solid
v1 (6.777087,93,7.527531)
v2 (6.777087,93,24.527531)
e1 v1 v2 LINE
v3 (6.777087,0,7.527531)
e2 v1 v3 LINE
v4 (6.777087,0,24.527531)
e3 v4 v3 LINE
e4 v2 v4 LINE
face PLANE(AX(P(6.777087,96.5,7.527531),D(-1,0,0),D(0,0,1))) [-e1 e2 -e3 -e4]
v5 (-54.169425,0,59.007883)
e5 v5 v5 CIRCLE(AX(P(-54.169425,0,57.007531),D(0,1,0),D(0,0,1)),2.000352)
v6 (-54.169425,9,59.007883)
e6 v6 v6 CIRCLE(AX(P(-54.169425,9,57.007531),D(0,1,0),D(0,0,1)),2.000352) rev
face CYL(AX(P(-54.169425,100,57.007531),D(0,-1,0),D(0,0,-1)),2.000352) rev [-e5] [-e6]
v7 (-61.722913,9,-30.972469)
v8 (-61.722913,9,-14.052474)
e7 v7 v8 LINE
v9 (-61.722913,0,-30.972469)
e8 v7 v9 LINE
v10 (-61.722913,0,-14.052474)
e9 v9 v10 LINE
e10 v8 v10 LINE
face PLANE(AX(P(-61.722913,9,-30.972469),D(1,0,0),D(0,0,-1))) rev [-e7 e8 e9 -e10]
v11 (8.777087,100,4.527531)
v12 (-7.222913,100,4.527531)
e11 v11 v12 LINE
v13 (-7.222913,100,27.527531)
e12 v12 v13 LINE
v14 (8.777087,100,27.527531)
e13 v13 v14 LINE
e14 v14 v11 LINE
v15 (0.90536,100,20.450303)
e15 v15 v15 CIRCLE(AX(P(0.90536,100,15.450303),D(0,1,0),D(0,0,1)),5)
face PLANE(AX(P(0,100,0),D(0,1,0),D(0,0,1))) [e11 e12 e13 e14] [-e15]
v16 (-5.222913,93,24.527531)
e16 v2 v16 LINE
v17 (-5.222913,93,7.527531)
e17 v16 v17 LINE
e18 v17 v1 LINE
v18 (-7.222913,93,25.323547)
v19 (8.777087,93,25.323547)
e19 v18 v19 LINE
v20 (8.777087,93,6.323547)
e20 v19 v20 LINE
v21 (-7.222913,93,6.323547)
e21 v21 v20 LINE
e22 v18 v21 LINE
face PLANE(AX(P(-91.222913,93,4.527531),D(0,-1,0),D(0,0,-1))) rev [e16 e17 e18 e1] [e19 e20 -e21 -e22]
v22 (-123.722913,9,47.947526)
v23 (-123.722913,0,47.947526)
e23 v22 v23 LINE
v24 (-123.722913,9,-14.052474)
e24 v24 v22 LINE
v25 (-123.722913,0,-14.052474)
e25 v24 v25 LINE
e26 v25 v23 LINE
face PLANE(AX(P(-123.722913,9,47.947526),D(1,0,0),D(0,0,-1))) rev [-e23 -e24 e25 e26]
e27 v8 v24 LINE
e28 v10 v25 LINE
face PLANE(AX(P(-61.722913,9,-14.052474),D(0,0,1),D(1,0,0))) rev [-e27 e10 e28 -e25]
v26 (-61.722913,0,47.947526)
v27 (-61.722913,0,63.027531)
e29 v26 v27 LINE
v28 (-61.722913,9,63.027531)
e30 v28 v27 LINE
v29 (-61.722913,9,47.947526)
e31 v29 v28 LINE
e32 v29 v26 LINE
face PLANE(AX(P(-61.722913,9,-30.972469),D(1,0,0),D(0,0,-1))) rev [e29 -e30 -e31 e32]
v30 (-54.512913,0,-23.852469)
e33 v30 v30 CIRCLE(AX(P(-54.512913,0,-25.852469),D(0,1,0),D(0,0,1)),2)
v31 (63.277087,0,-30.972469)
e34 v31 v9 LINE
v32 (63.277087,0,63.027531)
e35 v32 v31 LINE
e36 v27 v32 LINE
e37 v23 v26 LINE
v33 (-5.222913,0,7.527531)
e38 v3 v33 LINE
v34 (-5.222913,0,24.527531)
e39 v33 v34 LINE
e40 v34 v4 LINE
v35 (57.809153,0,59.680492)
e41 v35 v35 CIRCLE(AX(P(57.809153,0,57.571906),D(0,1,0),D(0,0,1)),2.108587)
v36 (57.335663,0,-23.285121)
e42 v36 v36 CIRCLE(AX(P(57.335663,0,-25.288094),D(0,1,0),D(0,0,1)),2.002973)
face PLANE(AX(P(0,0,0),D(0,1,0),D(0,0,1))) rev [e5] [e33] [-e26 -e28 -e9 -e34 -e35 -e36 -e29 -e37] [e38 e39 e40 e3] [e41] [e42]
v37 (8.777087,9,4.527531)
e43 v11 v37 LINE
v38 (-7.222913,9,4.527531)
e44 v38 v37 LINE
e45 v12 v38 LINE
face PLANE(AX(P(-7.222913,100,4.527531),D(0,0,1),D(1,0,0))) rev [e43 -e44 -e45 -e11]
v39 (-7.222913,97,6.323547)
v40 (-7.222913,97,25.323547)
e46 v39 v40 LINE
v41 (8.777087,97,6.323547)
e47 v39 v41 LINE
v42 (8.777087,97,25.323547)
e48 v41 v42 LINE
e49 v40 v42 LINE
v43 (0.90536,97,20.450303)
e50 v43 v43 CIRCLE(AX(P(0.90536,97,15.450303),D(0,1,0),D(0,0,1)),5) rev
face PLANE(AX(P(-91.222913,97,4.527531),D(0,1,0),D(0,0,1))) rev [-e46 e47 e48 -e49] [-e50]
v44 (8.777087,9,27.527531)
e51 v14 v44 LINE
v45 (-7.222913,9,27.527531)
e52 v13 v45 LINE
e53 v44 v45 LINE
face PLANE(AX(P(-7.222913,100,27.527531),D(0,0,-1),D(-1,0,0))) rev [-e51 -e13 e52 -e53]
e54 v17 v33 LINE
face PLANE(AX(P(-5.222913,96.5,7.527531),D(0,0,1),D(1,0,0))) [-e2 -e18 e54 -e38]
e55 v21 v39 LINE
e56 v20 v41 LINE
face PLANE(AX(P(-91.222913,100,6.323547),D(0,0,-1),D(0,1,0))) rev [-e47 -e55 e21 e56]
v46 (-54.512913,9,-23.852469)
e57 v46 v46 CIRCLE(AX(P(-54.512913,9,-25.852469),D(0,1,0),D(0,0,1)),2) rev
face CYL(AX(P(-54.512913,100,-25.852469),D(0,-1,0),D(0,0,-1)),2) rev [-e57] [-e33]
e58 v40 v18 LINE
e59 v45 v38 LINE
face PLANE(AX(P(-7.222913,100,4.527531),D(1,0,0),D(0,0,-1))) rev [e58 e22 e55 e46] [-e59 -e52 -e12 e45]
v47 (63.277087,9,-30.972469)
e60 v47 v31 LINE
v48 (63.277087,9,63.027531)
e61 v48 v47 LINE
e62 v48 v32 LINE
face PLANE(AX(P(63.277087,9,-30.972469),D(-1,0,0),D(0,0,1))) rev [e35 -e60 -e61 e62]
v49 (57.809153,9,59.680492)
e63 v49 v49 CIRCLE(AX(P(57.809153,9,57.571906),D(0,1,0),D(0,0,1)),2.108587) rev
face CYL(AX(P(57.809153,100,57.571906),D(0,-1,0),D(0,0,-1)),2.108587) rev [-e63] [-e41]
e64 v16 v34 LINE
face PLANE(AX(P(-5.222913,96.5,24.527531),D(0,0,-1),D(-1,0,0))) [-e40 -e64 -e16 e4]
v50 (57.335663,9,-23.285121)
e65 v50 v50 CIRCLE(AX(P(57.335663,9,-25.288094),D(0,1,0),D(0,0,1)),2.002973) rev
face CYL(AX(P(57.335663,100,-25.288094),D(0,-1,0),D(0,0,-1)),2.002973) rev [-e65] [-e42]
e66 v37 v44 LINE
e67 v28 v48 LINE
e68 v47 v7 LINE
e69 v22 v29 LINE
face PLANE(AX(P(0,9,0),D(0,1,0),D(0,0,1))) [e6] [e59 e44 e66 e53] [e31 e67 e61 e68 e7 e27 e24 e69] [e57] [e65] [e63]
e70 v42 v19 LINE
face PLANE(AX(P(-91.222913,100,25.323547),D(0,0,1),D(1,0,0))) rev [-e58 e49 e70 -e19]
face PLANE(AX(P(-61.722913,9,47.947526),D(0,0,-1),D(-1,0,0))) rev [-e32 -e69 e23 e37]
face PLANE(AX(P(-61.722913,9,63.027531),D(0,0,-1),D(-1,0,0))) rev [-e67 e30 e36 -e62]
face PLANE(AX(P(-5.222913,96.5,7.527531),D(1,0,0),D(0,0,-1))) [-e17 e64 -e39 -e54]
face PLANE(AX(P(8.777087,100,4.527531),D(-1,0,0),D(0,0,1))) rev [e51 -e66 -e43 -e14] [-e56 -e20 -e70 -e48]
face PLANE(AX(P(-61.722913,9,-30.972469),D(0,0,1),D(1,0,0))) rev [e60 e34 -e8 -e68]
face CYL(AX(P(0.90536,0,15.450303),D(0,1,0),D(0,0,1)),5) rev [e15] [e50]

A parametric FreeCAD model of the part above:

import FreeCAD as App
import Part
import Sketcher


def add_polygon(sketch, points):
    """Adds a closed chain of lines whose ends are joined by coincident constraints."""
    first, n = sketch.GeometryCount, len(points)
    for a, b in zip(points, points[1:] + points[:1]):
        sketch.addGeometry(Part.LineSegment(App.Vector(*a, 0), App.Vector(*b, 0)), False)
    for i in range(n):
        sketch.addConstraint(Sketcher.Constraint("Coincident", first + i, 2, first + (i + 1) % n, 1))

doc = App.newDocument("Part")
body = doc.addObject("PartDesign::Body", "Body")

# Sketch on XZ plane
sketch1 = body.newObject("Sketcher::SketchObject", "Sketch")
sketch1.AttachmentSupport = (doc.getObject("XZ_Plane"), [""])
sketch1.MapMode = "FlatFace"
add_polygon(sketch1, [(-61.722913, -30.972469), (-61.722913, 63.027531), (63.277087, 63.027531), (63.277087, -30.972469)])  # lines 0-3
sketch1.addConstraint([
    Sketcher.Constraint("Vertical", 0),
    Sketcher.Constraint("Horizontal", 1),
    Sketcher.Constraint("Vertical", 2),
    Sketcher.Constraint("Horizontal", 3),
    Sketcher.Constraint("DistanceX", 1, 1, 1, 2, 125.0),
    Sketcher.Constraint("DistanceY", 0, 1, 0, 2, 94.0),
    Sketcher.Constraint("DistanceY", -1, 1, 0, 2, 63.027531),
    Sketcher.Constraint("DistanceX", 0, 2, -1, 1, 61.722913),
])
pad1 = body.newObject("PartDesign::Pad", "Pad")
pad1.Profile = sketch1
pad1.Length = 9
pad1.Reversed = True

# Sketch on XZ plane
sketch2 = body.newObject("Sketcher::SketchObject", "Sketch001")
sketch2.AttachmentSupport = (doc.getObject("XZ_Plane"), [""])
sketch2.MapMode = "FlatFace"
add_polygon(sketch2, [(-7.222913, 4.527531), (-7.222913, 27.527531), (8.777087, 27.527531), (8.777087, 4.527531)])  # lines 0-3
sketch2.addConstraint([
    Sketcher.Constraint("Vertical", 0),
    Sketcher.Constraint("Horizontal", 1),
    Sketcher.Constraint("Vertical", 2),
    Sketcher.Constraint("Horizontal", 3),
    Sketcher.Constraint("DistanceX", 1, 1, 1, 2, 16.0),
    Sketcher.Constraint("DistanceY", 0, 1, 0, 2, 23.0),
    Sketcher.Constraint("DistanceY", -1, 1, 0, 2, 27.527531),
    Sketcher.Constraint("DistanceX", 0, 2, -1, 1, 7.222913),
])
pad2 = body.newObject("PartDesign::Pad", "Pad001")
pad2.Profile = sketch2
pad2.Length = 100
pad2.Reversed = True

# Sketch on XZ plane
sketch3 = body.newObject("Sketcher::SketchObject", "Sketch002")
sketch3.AttachmentSupport = (doc.getObject("XZ_Plane"), [""])
sketch3.MapMode = "FlatFace"
add_polygon(sketch3, [(-5.222913, 7.527531), (-5.222913, 24.527531), (6.777087, 24.527531), (6.777087, 7.527531)])  # lines 0-3
sketch3.addConstraint([
    Sketcher.Constraint("Vertical", 0),
    Sketcher.Constraint("Horizontal", 1),
    Sketcher.Constraint("Vertical", 2),
    Sketcher.Constraint("Horizontal", 3),
    Sketcher.Constraint("DistanceX", 1, 1, 1, 2, 12.0),
    Sketcher.Constraint("DistanceY", 0, 1, 0, 2, 17.0),
    Sketcher.Constraint("DistanceY", -1, 1, 0, 2, 24.527531),
    Sketcher.Constraint("DistanceX", 0, 2, -1, 1, 5.222913),
])
pocket1 = body.newObject("PartDesign::Pocket", "Pocket")
pocket1.Profile = sketch3
pocket1.Length = 96.5

# Sketch on XZ plane
sketch4 = body.newObject("Sketcher::SketchObject", "Sketch003")
sketch4.AttachmentSupport = (doc.getObject("XZ_Plane"), [""])
sketch4.MapMode = "FlatFace"
sketch4.AttachmentOffset = App.Placement(App.Vector(0, 0, -100), App.Rotation())
sketch4.addGeometry(Part.Circle(App.Vector(0.90536, 15.450303, 0), App.Vector(0, 0, 1), 5), False)
sketch4.addConstraint([
    Sketcher.Constraint("Diameter", 0, 10.0),
    Sketcher.Constraint("DistanceX", -1, 1, 0, 3, 0.90536),
    Sketcher.Constraint("DistanceY", -1, 1, 0, 3, 15.450303),
])
pocket2 = body.newObject("PartDesign::Pocket", "Pocket001")
pocket2.Profile = sketch4
pocket2.Length = 100
pocket2.Reversed = True

# Sketch on YZ plane
sketch5 = body.newObject("Sketcher::SketchObject", "Sketch004")
sketch5.AttachmentSupport = (doc.getObject("YZ_Plane"), [""])
sketch5.MapMode = "FlatFace"
sketch5.AttachmentOffset = App.Placement(App.Vector(0, 0, 8.777087), App.Rotation())
add_polygon(sketch5, [(97, 25.323547), (93, 25.323547), (93, 6.323547), (97, 6.323547)])  # lines 0-3
sketch5.addConstraint([
    Sketcher.Constraint("Horizontal", 0),
    Sketcher.Constraint("Vertical", 1),
    Sketcher.Constraint("Horizontal", 2),
    Sketcher.Constraint("Vertical", 3),
    Sketcher.Constraint("DistanceX", 0, 2, 0, 1, 4.0),
    Sketcher.Constraint("DistanceY", 1, 2, 1, 1, 19.0),
    Sketcher.Constraint("DistanceX", -1, 1, 0, 2, 93.0),
    Sketcher.Constraint("DistanceY", -1, 1, 0, 2, 25.323547),
])
pocket3 = body.newObject("PartDesign::Pocket", "Pocket002")
pocket3.Profile = sketch5
pocket3.Length = 100

# Sketch on XZ plane
sketch6 = body.newObject("Sketcher::SketchObject", "Sketch005")
sketch6.AttachmentSupport = (doc.getObject("XZ_Plane"), [""])
sketch6.MapMode = "FlatFace"
sketch6.addGeometry([
    Part.Circle(App.Vector(-54.512913, -25.852469, 0), App.Vector(0, 0, 1), 2),
    Part.Circle(App.Vector(57.335663, -25.288094, 0), App.Vector(0, 0, 1), 2.002973),
    Part.Circle(App.Vector(57.809153, 57.571906, 0), App.Vector(0, 0, 1), 2.108587),
    Part.Circle(App.Vector(-54.169425, 57.007531, 0), App.Vector(0, 0, 1), 2.000352),
], False)
sketch6.addConstraint([
    Sketcher.Constraint("Diameter", 0, 4.0),
    Sketcher.Constraint("DistanceY", 1, 3, 2, 3, 82.86),
    Sketcher.Constraint("DistanceY", 0, 3, 3, 3, 82.86),
    Sketcher.Constraint("Diameter", 1, 4.005946),
    Sketcher.Constraint("Diameter", 2, 4.217173),
    Sketcher.Constraint("Diameter", 3, 4.000703),
    Sketcher.Constraint("DistanceY", 0, 3, -1, 1, 25.852469),
    Sketcher.Constraint("DistanceX", 1, 3, 2, 3, 0.47349),
    Sketcher.Constraint("DistanceX", 0, 3, 3, 3, 0.343488),
    Sketcher.Constraint("DistanceX", 3, 3, 1, 3, 111.505088),
    Sketcher.Constraint("DistanceX", 0, 3, -1, 1, 54.512913),
    Sketcher.Constraint("DistanceY", 1, 3, -1, 1, 25.288094),
])
pocket4 = body.newObject("PartDesign::Pocket", "Pocket003")
pocket4.Profile = sketch6
pocket4.Length = 100

# Sketch on XZ plane
sketch7 = body.newObject("Sketcher::SketchObject", "Sketch006")
sketch7.AttachmentSupport = (doc.getObject("XZ_Plane"), [""])
sketch7.MapMode = "FlatFace"
add_polygon(sketch7, [(-123.722913, -14.052474), (-123.722913, 47.947526), (-61.722913, 47.947526), (-61.722913, -14.052474)])  # lines 0-3
sketch7.addConstraint([
    Sketcher.Constraint("Vertical", 0),
    Sketcher.Constraint("Horizontal", 1),
    Sketcher.Constraint("Vertical", 2),
    Sketcher.Constraint("Horizontal", 3),
    Sketcher.Constraint("Equal", 3, 0),
    Sketcher.Constraint("DistanceX", 1, 1, 1, 2, 62.0),
    Sketcher.Constraint("DistanceX", 0, 2, -1, 1, 123.722913),
    Sketcher.Constraint("DistanceY", -1, 1, 0, 2, 47.947526),
])
pad3 = body.newObject("PartDesign::Pad", "Pad002")
pad3.Profile = sketch7
pad3.Length = 9
pad3.Reversed = True

doc.recompute()
